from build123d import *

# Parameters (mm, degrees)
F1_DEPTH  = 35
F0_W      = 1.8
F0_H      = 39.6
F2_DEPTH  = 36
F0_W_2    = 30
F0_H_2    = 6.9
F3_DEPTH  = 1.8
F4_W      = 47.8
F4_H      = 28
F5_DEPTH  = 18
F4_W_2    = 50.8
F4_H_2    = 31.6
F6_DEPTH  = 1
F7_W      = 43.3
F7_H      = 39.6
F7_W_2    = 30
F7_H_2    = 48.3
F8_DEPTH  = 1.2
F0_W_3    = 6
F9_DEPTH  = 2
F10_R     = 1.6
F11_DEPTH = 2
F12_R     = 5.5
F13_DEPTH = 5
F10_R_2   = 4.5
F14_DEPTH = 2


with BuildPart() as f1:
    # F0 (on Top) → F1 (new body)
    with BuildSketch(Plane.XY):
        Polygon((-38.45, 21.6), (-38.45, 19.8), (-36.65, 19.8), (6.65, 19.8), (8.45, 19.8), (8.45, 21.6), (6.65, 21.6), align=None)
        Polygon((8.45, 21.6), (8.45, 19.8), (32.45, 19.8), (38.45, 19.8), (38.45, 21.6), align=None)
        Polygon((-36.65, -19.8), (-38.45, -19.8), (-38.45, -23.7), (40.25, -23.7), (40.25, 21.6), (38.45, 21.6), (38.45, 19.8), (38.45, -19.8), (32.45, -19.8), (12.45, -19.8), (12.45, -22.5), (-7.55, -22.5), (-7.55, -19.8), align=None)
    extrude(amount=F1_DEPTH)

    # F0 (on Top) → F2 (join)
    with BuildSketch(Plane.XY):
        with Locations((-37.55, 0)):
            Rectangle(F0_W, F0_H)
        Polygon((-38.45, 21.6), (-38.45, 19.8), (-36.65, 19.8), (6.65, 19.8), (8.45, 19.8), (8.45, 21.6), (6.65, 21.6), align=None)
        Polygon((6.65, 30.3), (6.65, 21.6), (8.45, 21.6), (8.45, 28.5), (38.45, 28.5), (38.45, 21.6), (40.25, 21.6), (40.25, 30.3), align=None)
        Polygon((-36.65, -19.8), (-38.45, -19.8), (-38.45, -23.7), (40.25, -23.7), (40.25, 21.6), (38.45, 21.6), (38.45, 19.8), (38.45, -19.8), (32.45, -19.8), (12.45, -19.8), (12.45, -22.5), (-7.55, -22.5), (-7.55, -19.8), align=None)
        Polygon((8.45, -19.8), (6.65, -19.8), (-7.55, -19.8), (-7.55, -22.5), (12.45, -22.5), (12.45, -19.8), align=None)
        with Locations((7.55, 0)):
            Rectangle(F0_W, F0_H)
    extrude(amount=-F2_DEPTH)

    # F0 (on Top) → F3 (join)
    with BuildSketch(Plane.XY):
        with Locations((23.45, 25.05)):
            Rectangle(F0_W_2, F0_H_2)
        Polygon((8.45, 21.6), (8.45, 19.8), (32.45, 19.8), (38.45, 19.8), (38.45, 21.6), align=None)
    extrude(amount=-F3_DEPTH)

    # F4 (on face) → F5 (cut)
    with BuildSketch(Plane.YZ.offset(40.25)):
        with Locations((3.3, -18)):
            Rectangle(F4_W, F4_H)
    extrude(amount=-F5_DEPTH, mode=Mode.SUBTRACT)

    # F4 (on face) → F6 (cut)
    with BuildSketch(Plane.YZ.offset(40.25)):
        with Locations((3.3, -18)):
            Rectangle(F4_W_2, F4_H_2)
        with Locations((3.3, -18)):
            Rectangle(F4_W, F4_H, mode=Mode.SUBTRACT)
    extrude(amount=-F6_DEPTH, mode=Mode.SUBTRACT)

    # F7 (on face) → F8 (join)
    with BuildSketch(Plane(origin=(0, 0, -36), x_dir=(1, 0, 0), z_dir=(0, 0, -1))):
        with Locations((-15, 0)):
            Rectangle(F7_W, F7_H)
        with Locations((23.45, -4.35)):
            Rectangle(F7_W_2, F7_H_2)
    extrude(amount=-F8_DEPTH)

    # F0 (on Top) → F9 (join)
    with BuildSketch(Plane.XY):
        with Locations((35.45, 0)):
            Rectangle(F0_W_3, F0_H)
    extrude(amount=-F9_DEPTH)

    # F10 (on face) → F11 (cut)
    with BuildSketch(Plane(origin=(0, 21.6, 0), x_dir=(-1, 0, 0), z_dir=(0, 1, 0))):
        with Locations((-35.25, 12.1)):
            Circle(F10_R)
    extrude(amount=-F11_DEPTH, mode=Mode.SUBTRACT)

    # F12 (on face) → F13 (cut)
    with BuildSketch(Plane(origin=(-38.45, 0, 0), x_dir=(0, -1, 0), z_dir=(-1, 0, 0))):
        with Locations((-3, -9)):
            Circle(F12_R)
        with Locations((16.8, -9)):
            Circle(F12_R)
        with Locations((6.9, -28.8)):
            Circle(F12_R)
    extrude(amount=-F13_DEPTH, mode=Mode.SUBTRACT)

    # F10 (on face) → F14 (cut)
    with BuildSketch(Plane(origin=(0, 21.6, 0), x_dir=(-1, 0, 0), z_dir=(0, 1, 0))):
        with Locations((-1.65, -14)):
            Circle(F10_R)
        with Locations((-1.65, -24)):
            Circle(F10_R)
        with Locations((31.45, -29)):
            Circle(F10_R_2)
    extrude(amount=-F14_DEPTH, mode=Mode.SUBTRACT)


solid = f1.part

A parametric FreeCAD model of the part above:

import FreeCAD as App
import Part
import Sketcher
from FreeCAD import Vector

doc = App.newDocument("Part")
body = doc.addObject("PartDesign::Body", "Body")

sketch1 = body.newObject("Sketcher::SketchObject", "Sketch")
sketch1.AttachmentSupport = (doc.getObject("XY_Plane"), [""])
sketch1.MapMode = "FlatFace"
sketch1.addGeometry(Part.LineSegment(Vector(-38.5, 21.6, 0), Vector(-38.5, 19.8, 0)), False)
sketch1.addGeometry(Part.LineSegment(Vector(-38.5, 19.8, 0), Vector(38.5, 19.8, 0)), False)
sketch1.addGeometry(Part.LineSegment(Vector(38.5, 19.8, 0), Vector(38.5, -19.8, 0)), False)
sketch1.addGeometry(Part.LineSegment(Vector(38.5, -19.8, 0), Vector(12.4, -19.8, 0)), False)
sketch1.addGeometry(Part.LineSegment(Vector(12.4, -19.8, 0), Vector(12.4, -22.5, 0)), False)
sketch1.addGeometry(Part.LineSegment(Vector(12.4, -22.5, 0), Vector(-7.5, -22.5, 0)), False)
sketch1.addGeometry(Part.LineSegment(Vector(-7.5, -22.5, 0), Vector(-7.5, -19.8, 0)), False)
sketch1.addGeometry(Part.LineSegment(Vector(-7.5, -19.8, 0), Vector(-38.5, -19.8, 0)), False)
sketch1.addGeometry(Part.LineSegment(Vector(-38.5, -19.8, 0), Vector(-38.5, -23.7, 0)), False)
sketch1.addGeometry(Part.LineSegment(Vector(-38.5, -23.7, 0), Vector(40.2, -23.7, 0)), False)
sketch1.addGeometry(Part.LineSegment(Vector(40.2, -23.7, 0), Vector(40.2, 21.6, 0)), False)
sketch1.addGeometry(Part.LineSegment(Vector(40.2, 21.6, 0), Vector(-38.5, 21.6, 0)), False)
sketch1.addConstraint(Sketcher.Constraint("Coincident", 0, 2, 1, 1))
sketch1.addConstraint(Sketcher.Constraint("Coincident", 1, 2, 2, 1))
sketch1.addConstraint(Sketcher.Constraint("Coincident", 2, 2, 3, 1))
sketch1.addConstraint(Sketcher.Constraint("Coincident", 3, 2, 4, 1))
sketch1.addConstraint(Sketcher.Constraint("Coincident", 4, 2, 5, 1))
sketch1.addConstraint(Sketcher.Constraint("Coincident", 5, 2, 6, 1))
sketch1.addConstraint(Sketcher.Constraint("Coincident", 6, 2, 7, 1))
sketch1.addConstraint(Sketcher.Constraint("Coincident", 7, 2, 8, 1))
sketch1.addConstraint(Sketcher.Constraint("Coincident", 8, 2, 9, 1))
sketch1.addConstraint(Sketcher.Constraint("Coincident", 9, 2, 10, 1))
sketch1.addConstraint(Sketcher.Constraint("Coincident", 10, 2, 11, 1))
sketch1.addConstraint(Sketcher.Constraint("Coincident", 11, 2, 0, 1))
sketch1.addConstraint(Sketcher.Constraint("Vertical", 0))
sketch1.addConstraint(Sketcher.Constraint("Horizontal", 1))
sketch1.addConstraint(Sketcher.Constraint("Vertical", 2))
sketch1.addConstraint(Sketcher.Constraint("Horizontal", 3))
sketch1.addConstraint(Sketcher.Constraint("Vertical", 4))
sketch1.addConstraint(Sketcher.Constraint("Horizontal", 5))
sketch1.addConstraint(Sketcher.Constraint("Vertical", 6))
sketch1.addConstraint(Sketcher.Constraint("Horizontal", 7))
sketch1.addConstraint(Sketcher.Constraint("Vertical", 8))
sketch1.addConstraint(Sketcher.Constraint("Horizontal", 9))
sketch1.addConstraint(Sketcher.Constraint("Vertical", 10))
sketch1.addConstraint(Sketcher.Constraint("Horizontal", 11))
sketch1.addConstraint(Sketcher.Constraint("Symmetric", 0, 2, 2, 2, -1, 1))
sketch1.addConstraint(Sketcher.Constraint("Symmetric", 1, 2, 7, 2, -1, 1))
sketch1.addConstraint(Sketcher.Constraint("DistanceX", 3, 2, 3, 1, 26.0))
sketch1.addConstraint(Sketcher.Constraint("DistanceX", 5, 2, 5, 1, 20.0))
sketch1.addConstraint(Sketcher.Constraint("DistanceX", 1, 1, 1, 2, 76.9))
sketch1.addConstraint(Sketcher.Constraint("DistanceX", 9, 1, 9, 2, 78.7))
sketch1.addConstraint(Sketcher.Constraint("DistanceY", 0, 2, 0, 1, 1.8))
sketch1.addConstraint(Sketcher.Constraint("DistanceY", 2, 2, 2, 1, 39.6))
sketch1.addConstraint(Sketcher.Constraint("DistanceY", 4, 2, 4, 1, 2.7))
sketch1.addConstraint(Sketcher.Constraint("DistanceY", 8, 2, 8, 1, 3.9))
pad1 = body.newObject("PartDesign::Pad", "Pad")
pad1.Profile = sketch1
pad1.Length = 35

sketch2 = body.newObject("Sketcher::SketchObject", "Sketch001")
sketch2.AttachmentSupport = (doc.getObject("XY_Plane"), [""])
sketch2.MapMode = "FlatFace"
sketch2.addGeometry(Part.LineSegment(Vector(40, 30, 0), Vector(7, 30, 0)), False)
sketch2.addGeometry(Part.LineSegment(Vector(7, 30, 0), Vector(7, 22, 0)), False)
sketch2.addGeometry(Part.LineSegment(Vector(7, 22, 0), Vector(-38, 22, 0)), False)
sketch2.addGeometry(Part.LineSegment(Vector(-38, 22, 0), Vector(-38, -24, 0)), False)
sketch2.addGeometry(Part.LineSegment(Vector(-38, -24, 0), Vector(40, -24, 0)), False)
sketch2.addGeometry(Part.LineSegment(Vector(40, -24, 0), Vector(40, 30, 0)), False)
sketch2.addGeometry(Part.LineSegment(Vector(-37, -20, 0), Vector(-37, 20, 0)), False)
sketch2.addGeometry(Part.LineSegment(Vector(-37, 20, 0), Vector(7, 20, 0)), False)
sketch2.addGeometry(Part.LineSegment(Vector(7, 20, 0), Vector(7, -20, 0)), False)
sketch2.addGeometry(Part.LineSegment(Vector(7, -20, 0), Vector(-37, -20, 0)), False)
sketch2.addGeometry(Part.LineSegment(Vector(8, 28, 0), Vector(38, 28, 0)), False)
sketch2.addGeometry(Part.LineSegment(Vector(38, 28, 0), Vector(38, -20, 0)), False)
sketch2.addGeometry(Part.LineSegment(Vector(38, -20, 0), Vector(8, -20, 0)), False)
sketch2.addGeometry(Part.LineSegment(Vector(8, -20, 0), Vector(8, 28, 0)), False)
sketch2.addConstraint(Sketcher.Constraint("Coincident", 0, 2, 1, 1))
sketch2.addConstraint(Sketcher.Constraint("Coincident", 1, 2, 2, 1))
sketch2.addConstraint(Sketcher.Constraint("Coincident", 2, 2, 3, 1))
sketch2.addConstraint(Sketcher.Constraint("Coincident", 3, 2, 4, 1))
sketch2.addConstraint(Sketcher.Constraint("Coincident", 4, 2, 5, 1))
sketch2.addConstraint(Sketcher.Constraint("Coincident", 5, 2, 0, 1))
sketch2.addConstraint(Sketcher.Constraint("Coincident", 6, 2, 7, 1))
sketch2.addConstraint(Sketcher.Constraint("Coincident", 7, 2, 8, 1))
sketch2.addConstraint(Sketcher.Constraint("Coincident", 8, 2, 9, 1))
sketch2.addConstraint(Sketcher.Constraint("Coincident", 9, 2, 6, 1))
sketch2.addConstraint(Sketcher.Constraint("Coincident", 10, 2, 11, 1))
sketch2.addConstraint(Sketcher.Constraint("Coincident", 11, 2, 12, 1))
sketch2.addConstraint(Sketcher.Constraint("Coincident", 12, 2, 13, 1))
sketch2.addConstraint(Sketcher.Constraint("Coincident", 13, 2, 10, 1))
sketch2.addConstraint(Sketcher.Constraint("Horizontal", 0))
sketch2.addConstraint(Sketcher.Constraint("Vertical", 1))
sketch2.addConstraint(Sketcher.Constraint("Horizontal", 2))
sketch2.addConstraint(Sketcher.Constraint("Vertical", 3))
sketch2.addConstraint(Sketcher.Constraint("Horizontal", 4))
sketch2.addConstraint(Sketcher.Constraint("Vertical", 5))
sketch2.addConstraint(Sketcher.Constraint("Vertical", 6))
sketch2.addConstraint(Sketcher.Constraint("Horizontal", 7))
sketch2.addConstraint(Sketcher.Constraint("Vertical", 8))
sketch2.addConstraint(Sketcher.Constraint("Horizontal", 9))
sketch2.addConstraint(Sketcher.Constraint("Horizontal", 10))
sketch2.addConstraint(Sketcher.Constraint("Vertical", 11))
sketch2.addConstraint(Sketcher.Constraint("Horizontal", 12))
sketch2.addConstraint(Sketcher.Constraint("Vertical", 13))
sketch2.addConstraint(Sketcher.Constraint("Horizontal", 9, 2, 11, 2))
sketch2.addConstraint(Sketcher.Constraint("Vertical", 1, 2, 7, 2))
sketch2.addConstraint(Sketcher.Constraint("DistanceX", 10, 1, 10, 2, 30.0))
sketch2.addConstraint(Sketcher.Constraint("DistanceY", 5, 1, 5, 2, 54.0))
sketch2.addConstraint(Sketcher.Constraint("DistanceX", 0, 2, 0, 1, 33.6))
sketch2.addConstraint(Sketcher.Constraint("DistanceX", 2, 2, 2, 1, 45.1))
sketch2.addConstraint(Sketcher.Constraint("DistanceX", 7, 1, 7, 2, 43.3))
sketch2.addConstraint(Sketcher.Constraint("DistanceY", 1, 2, 1, 1, 8.7))
sketch2.addConstraint(Sketcher.Constraint("DistanceY", 6, 1, 6, 2, 39.6))
sketch2.addConstraint(Sketcher.Constraint("DistanceY", 11, 2, 11, 1, 48.3))
sketch2.addConstraint(Sketcher.Constraint("DistanceY", -1, 1, 0, 2, 30.3))
sketch2.addConstraint(Sketcher.Constraint("DistanceY", -1, 1, 6, 2, 19.8))
sketch2.addConstraint(Sketcher.Constraint("DistanceX", 10, 2, 5, 2, 1.8))
sketch2.addConstraint(Sketcher.Constraint("DistanceX", -1, 1, 0, 2, 6.65))
pad2 = body.newObject("PartDesign::Pad", "Pad001")
pad2.Profile = sketch2
pad2.Length = 36
pad2.Reversed = True

sketch3 = body.newObject("Sketcher::SketchObject", "Sketch002")
sketch3.AttachmentSupport = (doc.getObject("XY_Plane"), [""])
sketch3.MapMode = "FlatFace"
sketch3.addGeometry(Part.LineSegment(Vector(8, 28, 0), Vector(8, 20, 0)), False)
sketch3.addGeometry(Part.LineSegment(Vector(8, 20, 0), Vector(38, 20, 0)), False)
sketch3.addGeometry(Part.LineSegment(Vector(38, 20, 0), Vector(38, 28, 0)), False)
sketch3.addGeometry(Part.LineSegment(Vector(38, 28, 0), Vector(8, 28, 0)), False)
sketch3.addConstraint(Sketcher.Constraint("Coincident", 0, 2, 1, 1))
sketch3.addConstraint(Sketcher.Constraint("Coincident", 1, 2, 2, 1))
sketch3.addConstraint(Sketcher.Constraint("Coincident", 2, 2, 3, 1))
sketch3.addConstraint(Sketcher.Constraint("Coincident", 3, 2, 0, 1))
sketch3.addConstraint(Sketcher.Constraint("Vertical", 0))
sketch3.addConstraint(Sketcher.Constraint("Horizontal", 1))
sketch3.addConstraint(Sketcher.Constraint("Vertical", 2))
sketch3.addConstraint(Sketcher.Constraint("Horizontal", 3))
sketch3.addConstraint(Sketcher.Constraint("DistanceX", 1, 1, 1, 2, 30.0))
sketch3.addConstraint(Sketcher.Constraint("DistanceY", 0, 2, 0, 1, 8.7))
sketch3.addConstraint(Sketcher.Constraint("DistanceY", -1, 1, 0, 2, 19.8))
sketch3.addConstraint(Sketcher.Constraint("DistanceX", -1, 1, 0, 2, 8.45))
pad3 = body.newObject("PartDesign::Pad", "Pad002")
pad3.Profile = sketch3
pad3.Length = 1.8
pad3.Reversed = True

sketch4 = body.newObject("Sketcher::SketchObject", "Sketch003")
sketch4.AttachmentSupport = (doc.getObject("YZ_Plane"), [""])
sketch4.MapMode = "FlatFace"
sketch4.AttachmentOffset = App.Placement(Vector(0, 0, 40.25), App.Rotation())
sketch4.addGeometry(Part.LineSegment(Vector(-21, -4, 0), Vector(-21, -32, 0)), False)
sketch4.addGeometry(Part.LineSegment(Vector(-21, -32, 0), Vector(27, -32, 0)), False)
sketch4.addGeometry(Part.LineSegment(Vector(27, -32, 0), Vector(27, -4, 0)), False)
sketch4.addGeometry(Part.LineSegment(Vector(27, -4, 0), Vector(-21, -4, 0)), False)
sketch4.addConstraint(Sketcher.Constraint("Coincident", 0, 2, 1, 1))
sketch4.addConstraint(Sketcher.Constraint("Coincident", 1, 2, 2, 1))
sketch4.addConstraint(Sketcher.Constraint("Coincident", 2, 2, 3, 1))
sketch4.addConstraint(Sketcher.Constraint("Coincident", 3, 2, 0, 1))
sketch4.addConstraint(Sketcher.Constraint("Vertical", 0))
sketch4.addConstraint(Sketcher.Constraint("Horizontal", 1))
sketch4.addConstraint(Sketcher.Constraint("Vertical", 2))
sketch4.addConstraint(Sketcher.Constraint("Horizontal", 3))
sketch4.addConstraint(Sketcher.Constraint("DistanceY", 0, 2, 0, 1, 28.0))
sketch4.addConstraint(Sketcher.Constraint("DistanceX", 1, 1, 1, 2, 47.8))
sketch4.addConstraint(Sketcher.Constraint("DistanceY", 0, 2, -1, 1, 32.0))
sketch4.addConstraint(Sketcher.Constraint("DistanceX", 0, 2, -1, 1, 20.6))
pocket1 = body.newObject("PartDesign::Pocket", "Pocket")
pocket1.Profile = sketch4
pocket1.Length = 18

sketch5 = body.newObject("Sketcher::SketchObject", "Sketch004")
sketch5.AttachmentSupport = (doc.getObject("YZ_Plane"), [""])
sketch5.MapMode = "FlatFace"
sketch5.AttachmentOffset = App.Placement(Vector(0, 0, 40.25), App.Rotation())
sketch5.addGeometry(Part.LineSegment(Vector(-22, -2, 0), Vector(-22, -34, 0)), False)
sketch5.addGeometry(Part.LineSegment(Vector(-22, -34, 0), Vector(29, -34, 0)), False)
sketch5.addGeometry(Part.LineSegment(Vector(29, -34, 0), Vector(29, -2, 0)), False)
sketch5.addGeometry(Part.LineSegment(Vector(29, -2, 0), Vector(-22, -2, 0)), False)
sketch5.addGeometry(Part.LineSegment(Vector(27, -32, 0), Vector(-21, -32, 0)), False)
sketch5.addGeometry(Part.LineSegment(Vector(-21, -32, 0), Vector(-21, -4, 0)), False)
sketch5.addGeometry(Part.LineSegment(Vector(-21, -4, 0), Vector(27, -4, 0)), False)
sketch5.addGeometry(Part.LineSegment(Vector(27, -4, 0), Vector(27, -32, 0)), False)
sketch5.addConstraint(Sketcher.Constraint("Coincident", 0, 2, 1, 1))
sketch5.addConstraint(Sketcher.Constraint("Coincident", 1, 2, 2, 1))
sketch5.addConstraint(Sketcher.Constraint("Coincident", 2, 2, 3, 1))
sketch5.addConstraint(Sketcher.Constraint("Coincident", 3, 2, 0, 1))
sketch5.addConstraint(Sketcher.Constraint("Coincident", 4, 2, 5, 1))
sketch5.addConstraint(Sketcher.Constraint("Coincident", 5, 2, 6, 1))
sketch5.addConstraint(Sketcher.Constraint("Coincident", 6, 2, 7, 1))
sketch5.addConstraint(Sketcher.Constraint("Coincident", 7, 2, 4, 1))
sketch5.addConstraint(Sketcher.Constraint("Vertical", 0))
sketch5.addConstraint(Sketcher.Constraint("Horizontal", 1))
sketch5.addConstraint(Sketcher.Constraint("Vertical", 2))
sketch5.addConstraint(Sketcher.Constraint("Horizontal", 3))
sketch5.addConstraint(Sketcher.Constraint("Horizontal", 4))
sketch5.addConstraint(Sketcher.Constraint("Vertical", 5))
sketch5.addConstraint(Sketcher.Constraint("Horizontal", 6))
sketch5.addConstraint(Sketcher.Constraint("Vertical", 7))
sketch5.addConstraint(Sketcher.Constraint("DistanceY", 5, 1, 5, 2, 28.0))
sketch5.addConstraint(Sketcher.Constraint("DistanceX", 1, 1, 1, 2, 50.8))
sketch5.addConstraint(Sketcher.Constraint("DistanceX", 4, 2, 4, 1, 47.8))
sketch5.addConstraint(Sketcher.Constraint("DistanceY", 0, 2, 0, 1, 31.6))
sketch5.addConstraint(Sketcher.Constraint("DistanceY", 4, 2, -1, 1, 32.0))
sketch5.addConstraint(Sketcher.Constraint("DistanceX", 0, 2, -1, 1, 22.1))
sketch5.addConstraint(Sketcher.Constraint("DistanceY", 0, 2, -1, 1, 33.8))
sketch5.addConstraint(Sketcher.Constraint("DistanceX", 4, 2, -1, 1, 20.6))
pocket2 = body.newObject("PartDesign::Pocket", "Pocket001")
pocket2.Profile = sketch5
pocket2.Length = 1

sketch6 = body.newObject("Sketcher::SketchObject", "Sketch005")
sketch6.AttachmentSupport = (doc.getObject("XY_Plane"), [""])
sketch6.MapMode = "FlatFace"
sketch6.AttachmentOffset = App.Placement(Vector(0, 0, -36), App.Rotation())
sketch6.addGeometry(Part.LineSegment(Vector(-37, -20, 0), Vector(-37, 20, 0)), False)
sketch6.addGeometry(Part.LineSegment(Vector(-37, 20, 0), Vector(7, 20, 0)), False)
sketch6.addGeometry(Part.LineSegment(Vector(7, 20, 0), Vector(7, -20, 0)), False)
sketch6.addGeometry(Part.LineSegment(Vector(7, -20, 0), Vector(-37, -20, 0)), False)
sketch6.addGeometry(Part.LineSegment(Vector(8, -20, 0), Vector(8, 28, 0)), False)
sketch6.addGeometry(Part.LineSegment(Vector(8, 28, 0), Vector(38, 28, 0)), False)
sketch6.addGeometry(Part.LineSegment(Vector(38, 28, 0), Vector(38, -20, 0)), False)
sketch6.addGeometry(Part.LineSegment(Vector(38, -20, 0), Vector(8, -20, 0)), False)
sketch6.addConstraint(Sketcher.Constraint("Coincident", 0, 2, 1, 1))
sketch6.addConstraint(Sketcher.Constraint("Coincident", 1, 2, 2, 1))
sketch6.addConstraint(Sketcher.Constraint("Coincident", 2, 2, 3, 1))
sketch6.addConstraint(Sketcher.Constraint("Coincident", 3, 2, 0, 1))
sketch6.addConstraint(Sketcher.Constraint("Coincident", 4, 2, 5, 1))
sketch6.addConstraint(Sketcher.Constraint("Coincident", 5, 2, 6, 1))
sketch6.addConstraint(Sketcher.Constraint("Coincident", 6, 2, 7, 1))
sketch6.addConstraint(Sketcher.Constraint("Coincident", 7, 2, 4, 1))
sketch6.addConstraint(Sketcher.Constraint("Vertical", 0))
sketch6.addConstraint(Sketcher.Constraint("Horizontal", 1))
sketch6.addConstraint(Sketcher.Constraint("Vertical", 2))
sketch6.addConstraint(Sketcher.Constraint("Horizontal", 3))
sketch6.addConstraint(Sketcher.Constraint("Vertical", 4))
sketch6.addConstraint(Sketcher.Constraint("Horizontal", 5))
sketch6.addConstraint(Sketcher.Constraint("Vertical", 6))
sketch6.addConstraint(Sketcher.Constraint("Horizontal", 7))
sketch6.addConstraint(Sketcher.Constraint("Horizontal", 3, 2, 6, 2))
sketch6.addConstraint(Sketcher.Constraint("DistanceX", 5, 1, 5, 2, 30.0))
sketch6.addConstraint(Sketcher.Constraint("DistanceX", 1, 1, 1, 2, 43.3))
sketch6.addConstraint(Sketcher.Constraint("DistanceY", 0, 1, 0, 2, 39.6))
sketch6.addConstraint(Sketcher.Constraint("DistanceY", 4, 1, 4, 2, 48.3))
sketch6.addConstraint(Sketcher.Constraint("DistanceY", -1, 1, 0, 2, 19.8))
sketch6.addConstraint(Sketcher.Constraint("DistanceX", 1, 2, 4, 2, 1.8))
sketch6.addConstraint(Sketcher.Constraint("DistanceX", 0, 2, -1, 1, 36.65))
pad4 = body.newObject("PartDesign::Pad", "Pad003")
pad4.Profile = sketch6
pad4.Length = 1.2

sketch7 = body.newObject("Sketcher::SketchObject", "Sketch006")
sketch7.AttachmentSupport = (doc.getObject("XY_Plane"), [""])
sketch7.MapMode = "FlatFace"
sketch7.addGeometry(Part.LineSegment(Vector(32, 20, 0), Vector(32, -20, 0)), False)
sketch7.addGeometry(Part.LineSegment(Vector(32, -20, 0), Vector(38, -20, 0)), False)
sketch7.addGeometry(Part.LineSegment(Vector(38, -20, 0), Vector(38, 20, 0)), False)
sketch7.addGeometry(Part.LineSegment(Vector(38, 20, 0), Vector(32, 20, 0)), False)
sketch7.addConstraint(Sketcher.Constraint("Coincident", 0, 2, 1, 1))
sketch7.addConstraint(Sketcher.Constraint("Coincident", 1, 2, 2, 1))
sketch7.addConstraint(Sketcher.Constraint("Coincident", 2, 2, 3, 1))
sketch7.addConstraint(Sketcher.Constraint("Coincident", 3, 2, 0, 1))
sketch7.addConstraint(Sketcher.Constraint("Vertical", 0))
sketch7.addConstraint(Sketcher.Constraint("Horizontal", 1))
sketch7.addConstraint(Sketcher.Constraint("Vertical", 2))
sketch7.addConstraint(Sketcher.Constraint("Horizontal", 3))
sketch7.addConstraint(Sketcher.Constraint("DistanceX", 1, 1, 1, 2, 6.0))
sketch7.addConstraint(Sketcher.Constraint("DistanceY", 0, 2, 0, 1, 39.6))
sketch7.addConstraint(Sketcher.Constraint("DistanceY", 0, 2, -1, 1, 19.8))
sketch7.addConstraint(Sketcher.Constraint("DistanceX", -1, 1, 0, 2, 32.45))
pad5 = body.newObject("PartDesign::Pad", "Pad004")
pad5.Profile = sketch7
pad5.Length = 2
pad5.Reversed = True

sketch8 = body.newObject("Sketcher::SketchObject", "Sketch007")
sketch8.AttachmentSupport = (doc.getObject("XZ_Plane"), [""])
sketch8.MapMode = "FlatFace"
sketch8.AttachmentOffset = App.Placement(Vector(0, 0, -21.6), App.Rotation())
sketch8.addGeometry(Part.Circle(Vector(35.2, 12.1, 0), Vector(0, 0, 1), 1.6), False)
sketch8.addConstraint(Sketcher.Constraint("Diameter", 0, 3.2))
sketch8.addConstraint(Sketcher.Constraint("DistanceY", -1, 1, 0, 3, 12.1))
sketch8.addConstraint(Sketcher.Constraint("DistanceX", -1, 1, 0, 3, 35.25))
pocket3 = body.newObject("PartDesign::Pocket", "Pocket002")
pocket3.Profile = sketch8
pocket3.Length = 2
pocket3.Reversed = True

sketch9 = body.newObject("Sketcher::SketchObject", "Sketch008")
sketch9.AttachmentSupport = (doc.getObject("YZ_Plane"), [""])
sketch9.MapMode = "FlatFace"
sketch9.AttachmentOffset = App.Placement(Vector(0, 0, -38.45), App.Rotation())
sketch9.addGeometry(Part.Circle(Vector(3, -9, 0), Vector(0, 0, 1), 6), False)
sketch9.addGeometry(Part.Circle(Vector(-17, -9, 0), Vector(0, 0, 1), 6), False)
sketch9.addGeometry(Part.Circle(Vector(-7, -29, 0), Vector(0, 0, 1), 6), False)
sketch9.addConstraint(Sketcher.Constraint("Equal", 0, 1))
sketch9.addConstraint(Sketcher.Constraint("Equal", 1, 2))
sketch9.addConstraint(Sketcher.Constraint("Horizontal", 0, 3, 1, 3))
sketch9.addConstraint(Sketcher.Constraint("Diameter", 0, 11.0))
sketch9.addConstraint(Sketcher.Constraint("DistanceX", -1, 1, 0, 3, 3.0))
sketch9.addConstraint(Sketcher.Constraint("DistanceY", 0, 3, -1, 1, 9.0))
sketch9.addConstraint(Sketcher.Constraint("DistanceX", 1, 3, -1, 1, 16.8))
sketch9.addConstraint(Sketcher.Constraint("DistanceX", 2, 3, -1, 1, 6.9))
sketch9.addConstraint(Sketcher.Constraint("DistanceY", 2, 3, -1, 1, 28.8))
pocket4 = body.newObject("PartDesign::Pocket", "Pocket003")
pocket4.Profile = sketch9
pocket4.Length = 5
pocket4.Reversed = True

sketch10 = body.newObject("Sketcher::SketchObject", "Sketch009")
sketch10.AttachmentSupport = (doc.getObject("XZ_Plane"), [""])
sketch10.MapMode = "FlatFace"
sketch10.AttachmentOffset = App.Placement(Vector(0, 0, -21.6), App.Rotation())
sketch10.addGeometry(Part.Circle(Vector(1.6, -14, 0), Vector(0, 0, 1), 1.6), False)
sketch10.addGeometry(Part.Circle(Vector(1.6, -24, 0), Vector(0, 0, 1), 1.6), False)
sketch10.addGeometry(Part.Circle(Vector(-31.4, -29, 0), Vector(0, 0, 1), 4.5), False)
sketch10.addConstraint(Sketcher.Constraint("Equal", 0, 1))
sketch10.addConstraint(Sketcher.Constraint("Vertical", 0, 3, 1, 3))
sketch10.addConstraint(Sketcher.Constraint("Diameter", 2, 9.0))
sketch10.addConstraint(Sketcher.Constraint("Diameter", 0, 3.2))
sketch10.addConstraint(Sketcher.Constraint("DistanceY", 0, 3, -1, 1, 14.0))
sketch10.addConstraint(Sketcher.Constraint("DistanceY", 1, 3, -1, 1, 24.0))
sketch10.addConstraint(Sketcher.Constraint("DistanceY", 2, 3, -1, 1, 29.0))
sketch10.addConstraint(Sketcher.Constraint("DistanceX", 2, 3, 1, 3, 33.1))
sketch10.addConstraint(Sketcher.Constraint("DistanceX", -1, 1, 0, 3, 1.65))
pocket5 = body.newObject("PartDesign::Pocket", "Pocket004")
pocket5.Profile = sketch10
pocket5.Length = 2
pocket5.Reversed = True

doc.recompute()
